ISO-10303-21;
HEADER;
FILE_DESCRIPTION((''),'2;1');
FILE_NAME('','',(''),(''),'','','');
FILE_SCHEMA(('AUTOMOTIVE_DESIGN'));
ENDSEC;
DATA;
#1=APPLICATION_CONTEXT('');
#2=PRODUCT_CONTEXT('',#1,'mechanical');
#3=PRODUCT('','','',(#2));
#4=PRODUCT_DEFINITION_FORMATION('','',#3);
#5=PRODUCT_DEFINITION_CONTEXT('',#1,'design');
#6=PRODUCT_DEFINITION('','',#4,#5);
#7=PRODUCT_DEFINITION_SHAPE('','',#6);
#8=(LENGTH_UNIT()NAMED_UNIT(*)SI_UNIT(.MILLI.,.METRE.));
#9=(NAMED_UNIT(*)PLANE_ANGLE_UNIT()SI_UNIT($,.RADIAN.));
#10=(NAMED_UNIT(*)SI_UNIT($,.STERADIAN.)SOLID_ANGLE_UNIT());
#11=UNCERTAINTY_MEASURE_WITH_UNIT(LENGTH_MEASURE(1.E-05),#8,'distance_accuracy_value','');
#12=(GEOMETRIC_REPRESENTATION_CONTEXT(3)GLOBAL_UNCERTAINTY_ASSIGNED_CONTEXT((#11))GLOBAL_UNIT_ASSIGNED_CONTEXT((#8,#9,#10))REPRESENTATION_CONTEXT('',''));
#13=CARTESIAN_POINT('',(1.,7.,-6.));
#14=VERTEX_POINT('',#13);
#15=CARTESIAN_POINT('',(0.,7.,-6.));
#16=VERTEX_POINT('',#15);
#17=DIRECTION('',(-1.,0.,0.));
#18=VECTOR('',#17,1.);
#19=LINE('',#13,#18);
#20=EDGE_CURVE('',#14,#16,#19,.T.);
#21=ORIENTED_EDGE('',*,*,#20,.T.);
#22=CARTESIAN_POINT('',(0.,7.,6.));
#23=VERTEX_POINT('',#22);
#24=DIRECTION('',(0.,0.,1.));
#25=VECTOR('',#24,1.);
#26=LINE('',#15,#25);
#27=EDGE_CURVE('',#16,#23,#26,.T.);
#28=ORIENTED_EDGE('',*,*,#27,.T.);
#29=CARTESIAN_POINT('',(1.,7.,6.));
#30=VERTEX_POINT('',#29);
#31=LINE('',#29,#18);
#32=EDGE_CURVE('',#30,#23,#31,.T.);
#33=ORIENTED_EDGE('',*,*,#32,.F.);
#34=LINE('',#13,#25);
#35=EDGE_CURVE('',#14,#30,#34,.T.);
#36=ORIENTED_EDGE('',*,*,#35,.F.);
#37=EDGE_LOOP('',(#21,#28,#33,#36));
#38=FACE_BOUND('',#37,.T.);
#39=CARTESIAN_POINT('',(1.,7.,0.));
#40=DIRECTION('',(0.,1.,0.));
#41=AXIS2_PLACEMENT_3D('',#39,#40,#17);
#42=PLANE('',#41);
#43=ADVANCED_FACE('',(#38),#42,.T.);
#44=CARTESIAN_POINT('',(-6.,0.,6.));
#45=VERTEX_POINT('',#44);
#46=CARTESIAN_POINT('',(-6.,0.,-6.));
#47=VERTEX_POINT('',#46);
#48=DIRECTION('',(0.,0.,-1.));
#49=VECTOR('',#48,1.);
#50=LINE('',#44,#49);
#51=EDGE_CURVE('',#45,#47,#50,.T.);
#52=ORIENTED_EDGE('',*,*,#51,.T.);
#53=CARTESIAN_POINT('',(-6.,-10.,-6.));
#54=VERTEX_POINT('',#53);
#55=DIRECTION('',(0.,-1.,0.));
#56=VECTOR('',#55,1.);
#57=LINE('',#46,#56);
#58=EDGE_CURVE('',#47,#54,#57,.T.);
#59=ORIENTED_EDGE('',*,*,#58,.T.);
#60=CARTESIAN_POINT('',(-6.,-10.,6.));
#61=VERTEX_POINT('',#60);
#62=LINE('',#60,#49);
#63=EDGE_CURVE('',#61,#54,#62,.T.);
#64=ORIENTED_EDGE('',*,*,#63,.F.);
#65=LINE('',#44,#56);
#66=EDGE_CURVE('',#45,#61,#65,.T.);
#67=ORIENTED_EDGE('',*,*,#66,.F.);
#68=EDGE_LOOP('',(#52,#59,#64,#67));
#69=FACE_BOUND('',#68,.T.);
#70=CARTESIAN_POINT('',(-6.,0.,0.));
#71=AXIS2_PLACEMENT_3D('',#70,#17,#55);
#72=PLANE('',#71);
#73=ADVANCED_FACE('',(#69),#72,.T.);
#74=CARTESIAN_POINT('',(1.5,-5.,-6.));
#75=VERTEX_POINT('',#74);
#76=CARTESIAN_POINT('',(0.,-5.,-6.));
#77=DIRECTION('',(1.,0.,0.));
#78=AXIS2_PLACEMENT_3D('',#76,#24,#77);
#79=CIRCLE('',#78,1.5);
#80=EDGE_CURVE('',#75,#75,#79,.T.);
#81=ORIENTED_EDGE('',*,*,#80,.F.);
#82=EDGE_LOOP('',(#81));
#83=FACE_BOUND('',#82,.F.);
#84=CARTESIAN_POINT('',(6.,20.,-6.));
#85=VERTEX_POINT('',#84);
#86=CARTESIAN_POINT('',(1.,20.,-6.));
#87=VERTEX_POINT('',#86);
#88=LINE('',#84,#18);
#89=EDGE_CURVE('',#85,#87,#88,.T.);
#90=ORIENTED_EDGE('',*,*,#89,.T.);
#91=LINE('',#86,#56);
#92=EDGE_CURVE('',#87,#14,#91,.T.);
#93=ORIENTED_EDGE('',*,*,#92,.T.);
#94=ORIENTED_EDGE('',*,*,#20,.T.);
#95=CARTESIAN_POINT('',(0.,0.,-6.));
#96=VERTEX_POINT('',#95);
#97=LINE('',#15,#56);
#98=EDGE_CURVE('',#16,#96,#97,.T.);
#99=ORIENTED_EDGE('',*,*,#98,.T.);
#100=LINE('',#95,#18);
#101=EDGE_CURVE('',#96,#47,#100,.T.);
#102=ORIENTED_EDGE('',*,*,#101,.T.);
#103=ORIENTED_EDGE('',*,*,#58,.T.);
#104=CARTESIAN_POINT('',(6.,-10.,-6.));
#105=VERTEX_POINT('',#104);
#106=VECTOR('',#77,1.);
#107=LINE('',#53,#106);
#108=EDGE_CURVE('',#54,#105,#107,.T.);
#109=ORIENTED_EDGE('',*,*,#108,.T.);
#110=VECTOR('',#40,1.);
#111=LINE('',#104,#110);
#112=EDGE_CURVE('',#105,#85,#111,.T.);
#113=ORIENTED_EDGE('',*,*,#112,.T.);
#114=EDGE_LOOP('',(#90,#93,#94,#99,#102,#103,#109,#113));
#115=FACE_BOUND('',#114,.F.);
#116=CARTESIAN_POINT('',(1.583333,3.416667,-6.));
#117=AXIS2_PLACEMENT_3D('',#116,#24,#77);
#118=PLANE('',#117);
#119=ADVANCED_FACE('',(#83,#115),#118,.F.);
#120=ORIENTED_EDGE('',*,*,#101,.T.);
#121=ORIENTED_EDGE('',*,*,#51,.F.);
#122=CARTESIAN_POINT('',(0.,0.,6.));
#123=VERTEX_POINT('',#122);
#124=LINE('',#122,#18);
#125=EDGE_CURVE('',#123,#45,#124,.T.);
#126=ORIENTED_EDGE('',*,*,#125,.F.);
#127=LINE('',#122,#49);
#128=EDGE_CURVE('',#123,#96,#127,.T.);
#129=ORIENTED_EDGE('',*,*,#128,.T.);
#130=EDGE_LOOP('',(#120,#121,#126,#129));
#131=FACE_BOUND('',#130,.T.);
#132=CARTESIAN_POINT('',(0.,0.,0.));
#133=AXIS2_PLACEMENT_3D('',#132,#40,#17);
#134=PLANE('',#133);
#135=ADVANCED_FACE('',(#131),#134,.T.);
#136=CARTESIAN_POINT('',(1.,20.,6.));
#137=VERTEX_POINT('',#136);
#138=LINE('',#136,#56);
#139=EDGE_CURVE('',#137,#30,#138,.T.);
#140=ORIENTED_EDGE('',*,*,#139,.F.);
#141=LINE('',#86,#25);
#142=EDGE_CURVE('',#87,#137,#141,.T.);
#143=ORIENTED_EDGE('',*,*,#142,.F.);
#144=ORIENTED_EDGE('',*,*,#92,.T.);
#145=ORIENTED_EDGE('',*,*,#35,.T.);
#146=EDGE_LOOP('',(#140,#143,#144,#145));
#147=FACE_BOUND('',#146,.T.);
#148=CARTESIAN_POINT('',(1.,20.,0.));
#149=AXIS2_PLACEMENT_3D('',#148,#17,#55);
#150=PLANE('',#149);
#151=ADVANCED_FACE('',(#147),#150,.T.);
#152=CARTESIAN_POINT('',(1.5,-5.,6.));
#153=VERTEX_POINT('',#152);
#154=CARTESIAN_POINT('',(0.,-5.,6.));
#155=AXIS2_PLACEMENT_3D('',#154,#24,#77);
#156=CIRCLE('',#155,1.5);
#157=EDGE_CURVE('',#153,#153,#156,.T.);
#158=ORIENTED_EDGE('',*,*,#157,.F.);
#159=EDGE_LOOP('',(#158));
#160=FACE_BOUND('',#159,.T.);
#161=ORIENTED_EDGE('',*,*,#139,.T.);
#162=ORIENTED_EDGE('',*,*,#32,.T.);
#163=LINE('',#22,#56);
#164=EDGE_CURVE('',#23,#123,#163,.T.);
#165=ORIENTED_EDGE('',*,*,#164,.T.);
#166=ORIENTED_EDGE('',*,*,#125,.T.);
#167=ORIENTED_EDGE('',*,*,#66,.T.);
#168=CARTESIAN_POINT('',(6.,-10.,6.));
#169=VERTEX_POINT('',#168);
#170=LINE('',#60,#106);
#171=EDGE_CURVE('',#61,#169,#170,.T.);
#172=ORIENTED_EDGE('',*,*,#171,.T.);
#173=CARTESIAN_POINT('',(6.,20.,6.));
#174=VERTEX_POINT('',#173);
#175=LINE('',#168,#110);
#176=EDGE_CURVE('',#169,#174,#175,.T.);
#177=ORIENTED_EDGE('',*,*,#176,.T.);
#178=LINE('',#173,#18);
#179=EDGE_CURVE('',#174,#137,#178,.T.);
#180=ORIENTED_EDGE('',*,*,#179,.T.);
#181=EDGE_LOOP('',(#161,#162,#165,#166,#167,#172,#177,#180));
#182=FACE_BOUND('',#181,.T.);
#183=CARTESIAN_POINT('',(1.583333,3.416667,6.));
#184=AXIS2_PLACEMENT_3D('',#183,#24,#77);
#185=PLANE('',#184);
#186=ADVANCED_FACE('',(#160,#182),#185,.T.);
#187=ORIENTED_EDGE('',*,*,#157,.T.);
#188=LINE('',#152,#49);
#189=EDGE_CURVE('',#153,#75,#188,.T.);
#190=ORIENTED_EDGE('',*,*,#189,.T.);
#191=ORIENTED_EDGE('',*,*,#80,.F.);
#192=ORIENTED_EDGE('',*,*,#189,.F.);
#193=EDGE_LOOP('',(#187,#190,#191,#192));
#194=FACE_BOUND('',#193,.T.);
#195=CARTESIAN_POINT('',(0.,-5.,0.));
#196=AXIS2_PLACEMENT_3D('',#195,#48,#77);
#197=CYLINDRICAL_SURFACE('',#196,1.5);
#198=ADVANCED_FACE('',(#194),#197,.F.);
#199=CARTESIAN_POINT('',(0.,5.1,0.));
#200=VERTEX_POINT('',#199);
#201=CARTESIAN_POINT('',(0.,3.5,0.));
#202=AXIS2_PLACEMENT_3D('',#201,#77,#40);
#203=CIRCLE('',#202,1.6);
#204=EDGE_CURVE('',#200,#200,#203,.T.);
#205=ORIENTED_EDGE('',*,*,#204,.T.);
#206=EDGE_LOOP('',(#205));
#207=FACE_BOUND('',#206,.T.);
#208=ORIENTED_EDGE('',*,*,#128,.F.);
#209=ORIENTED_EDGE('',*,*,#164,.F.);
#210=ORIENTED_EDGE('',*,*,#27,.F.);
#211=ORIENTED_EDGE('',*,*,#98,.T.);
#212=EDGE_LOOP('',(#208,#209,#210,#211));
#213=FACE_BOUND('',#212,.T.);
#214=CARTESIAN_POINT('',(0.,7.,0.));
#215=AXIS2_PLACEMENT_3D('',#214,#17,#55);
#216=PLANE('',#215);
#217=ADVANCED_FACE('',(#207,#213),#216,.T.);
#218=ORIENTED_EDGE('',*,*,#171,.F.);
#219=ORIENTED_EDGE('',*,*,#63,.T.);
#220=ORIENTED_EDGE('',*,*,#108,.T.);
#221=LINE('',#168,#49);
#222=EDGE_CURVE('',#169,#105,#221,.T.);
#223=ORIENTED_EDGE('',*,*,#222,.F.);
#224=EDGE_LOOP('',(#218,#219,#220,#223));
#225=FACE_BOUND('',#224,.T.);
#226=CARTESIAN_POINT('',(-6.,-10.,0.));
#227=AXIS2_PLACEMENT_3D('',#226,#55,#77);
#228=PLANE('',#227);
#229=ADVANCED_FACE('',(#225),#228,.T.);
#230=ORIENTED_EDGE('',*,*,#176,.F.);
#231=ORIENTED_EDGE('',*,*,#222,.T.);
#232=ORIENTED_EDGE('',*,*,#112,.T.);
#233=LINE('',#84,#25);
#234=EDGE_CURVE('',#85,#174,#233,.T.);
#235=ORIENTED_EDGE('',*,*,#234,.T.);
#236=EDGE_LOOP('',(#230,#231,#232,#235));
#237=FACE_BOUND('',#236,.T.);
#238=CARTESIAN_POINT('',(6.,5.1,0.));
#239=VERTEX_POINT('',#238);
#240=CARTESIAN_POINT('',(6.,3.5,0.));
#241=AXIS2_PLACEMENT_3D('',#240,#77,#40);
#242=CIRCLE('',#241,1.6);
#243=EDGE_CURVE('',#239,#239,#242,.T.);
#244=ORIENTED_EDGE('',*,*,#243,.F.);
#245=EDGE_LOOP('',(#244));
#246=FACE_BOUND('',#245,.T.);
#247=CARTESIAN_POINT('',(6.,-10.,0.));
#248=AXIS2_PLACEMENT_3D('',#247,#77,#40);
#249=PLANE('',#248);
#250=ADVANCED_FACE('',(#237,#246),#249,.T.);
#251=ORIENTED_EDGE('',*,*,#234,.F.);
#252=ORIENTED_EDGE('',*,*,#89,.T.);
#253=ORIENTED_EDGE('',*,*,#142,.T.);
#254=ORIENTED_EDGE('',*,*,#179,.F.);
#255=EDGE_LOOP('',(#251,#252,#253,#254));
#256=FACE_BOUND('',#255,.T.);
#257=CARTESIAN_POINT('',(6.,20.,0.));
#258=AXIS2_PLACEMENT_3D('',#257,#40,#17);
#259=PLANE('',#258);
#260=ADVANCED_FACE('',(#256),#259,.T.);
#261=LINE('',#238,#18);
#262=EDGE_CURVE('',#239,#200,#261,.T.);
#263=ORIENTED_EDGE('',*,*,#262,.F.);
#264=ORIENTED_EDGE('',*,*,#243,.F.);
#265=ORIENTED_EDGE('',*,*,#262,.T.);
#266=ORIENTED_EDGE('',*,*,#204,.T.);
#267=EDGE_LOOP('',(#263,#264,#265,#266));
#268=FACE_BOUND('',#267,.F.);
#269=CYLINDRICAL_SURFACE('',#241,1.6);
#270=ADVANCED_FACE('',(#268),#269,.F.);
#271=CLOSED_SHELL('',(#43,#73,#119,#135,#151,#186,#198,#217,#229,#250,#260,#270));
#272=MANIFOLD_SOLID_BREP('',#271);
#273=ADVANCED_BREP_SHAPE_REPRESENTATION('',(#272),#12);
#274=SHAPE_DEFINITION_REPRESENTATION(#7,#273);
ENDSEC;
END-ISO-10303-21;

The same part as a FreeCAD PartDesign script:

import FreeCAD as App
import Part
import Sketcher
from FreeCAD import Vector


def add_polygon(sketch, points):
    """Adds a closed chain of lines whose ends are joined by coincident constraints."""
    first, n = sketch.GeometryCount, len(points)
    for a, b in zip(points, points[1:] + points[:1]):
        sketch.addGeometry(Part.LineSegment(App.Vector(*a, 0), App.Vector(*b, 0)), False)
    for i in range(n):
        sketch.addConstraint(Sketcher.Constraint("Coincident", first + i, 2, first + (i + 1) % n, 1))

doc = App.newDocument("Part")
params = doc.addObject("Spreadsheet::Sheet", "Params")
for row, (alias, value) in enumerate([
    ("sketch1_diameter", "3 mm"),
    ("sketch1_width", "5 mm"),
    ("sketch1_width2", "1 mm"),
    ("sketch1_width3", "6 mm"),
    ("sketch1_height", "30 mm"),
    ("pad1_length", "12 mm"),
    ("sketch2_diameter", "3.2 mm"),
    ("pocket1_length", "25 mm"),
], start=1):
    params.set(f"A{row}", alias)
    params.set(f"B{row}", "=" + value)
    params.setAlias(f"B{row}", alias)

body = doc.addObject("PartDesign::Body", "Body")

# Sketch on XY plane
sketch1 = body.newObject("Sketcher::SketchObject", "Sketch")
sketch1.AttachmentSupport = (doc.getObject("XY_Plane"), [""])
sketch1.MapMode = "FlatFace"
add_polygon(sketch1, [(6, -10), (6, 20), (1, 20), (1, 7), (0, 7), (0, 0), (-6, 0), (-6, -10)])  # lines 0-7
sketch1.addGeometry(Part.Circle(Vector(0, -5, 0), Vector(0, 0, 1), 1.5), False)  # 8
sketch1.addConstraint(Sketcher.Constraint("Vertical", 0))
sketch1.addConstraint(Sketcher.Constraint("Horizontal", 1))
sketch1.addConstraint(Sketcher.Constraint("Vertical", 2))
sketch1.addConstraint(Sketcher.Constraint("Horizontal", 3))
sketch1.addConstraint(Sketcher.Constraint("Vertical", 4))
sketch1.addConstraint(Sketcher.Constraint("Horizontal", 5))
sketch1.addConstraint(Sketcher.Constraint("Vertical", 6))
sketch1.addConstraint(Sketcher.Constraint("Horizontal", 7))
sketch1.addConstraint(Sketcher.Constraint("Coincident", 4, 2, -1, 1))
sketch1.addConstraint(Sketcher.Constraint("PointOnObject", 8, 3, -2))
sketch1.addConstraint(Sketcher.Constraint("Diameter", 8, 3.0))
sketch1.addConstraint(Sketcher.Constraint("DistanceX", 1, 2, 1, 1, 5.0))
sketch1.addConstraint(Sketcher.Constraint("DistanceX", 3, 2, 3, 1, 1.0))
sketch1.addConstraint(Sketcher.Constraint("DistanceX", 5, 2, 5, 1, 6.0))
sketch1.addConstraint(Sketcher.Constraint("DistanceY", 0, 1, 0, 2, 30.0))
sketch1.addConstraint(Sketcher.Constraint("DistanceY", 2, 2, 2, 1, 13.0))
sketch1.addConstraint(Sketcher.Constraint("DistanceY", 4, 2, 4, 1, 7.0))
sketch1.addConstraint(Sketcher.Constraint("DistanceY", 8, 3, -1, 1, 5.0))
sketch1.setExpression("Constraints[18]", "Params.sketch1_diameter")
sketch1.setExpression("Constraints[19]", "Params.sketch1_width")
sketch1.setExpression("Constraints[20]", "Params.sketch1_width2")
sketch1.setExpression("Constraints[21]", "Params.sketch1_width3")
sketch1.setExpression("Constraints[22]", "Params.sketch1_height")
pad1 = body.newObject("PartDesign::Pad", "Pad")
pad1.Profile = sketch1
pad1.setExpression("Length", "Params.pad1_length")
pad1.Midplane = True

# Sketch on YZ plane
sketch2 = body.newObject("Sketcher::SketchObject", "Sketch001")
sketch2.AttachmentSupport = (doc.getObject("YZ_Plane"), [""])
sketch2.MapMode = "FlatFace"
sketch2.AttachmentOffset = App.Placement(Vector(0, 0, 6), App.Rotation())
sketch2.addGeometry(Part.Circle(Vector(3.5, 0, 0), Vector(0, 0, 1), 1.6), False)
sketch2.addConstraint(Sketcher.Constraint("PointOnObject", 0, 3, -1))
sketch2.addConstraint(Sketcher.Constraint("Diameter", 0, 3.2))
sketch2.addConstraint(Sketcher.Constraint("DistanceX", -1, 1, 0, 3, 3.5))
sketch2.setExpression("Constraints[1]", "Params.sketch2_diameter")
pocket1 = body.newObject("PartDesign::Pocket", "Pocket")
pocket1.Profile = sketch2
pocket1.setExpression("Length", "Params.pocket1_length")

doc.recompute()
